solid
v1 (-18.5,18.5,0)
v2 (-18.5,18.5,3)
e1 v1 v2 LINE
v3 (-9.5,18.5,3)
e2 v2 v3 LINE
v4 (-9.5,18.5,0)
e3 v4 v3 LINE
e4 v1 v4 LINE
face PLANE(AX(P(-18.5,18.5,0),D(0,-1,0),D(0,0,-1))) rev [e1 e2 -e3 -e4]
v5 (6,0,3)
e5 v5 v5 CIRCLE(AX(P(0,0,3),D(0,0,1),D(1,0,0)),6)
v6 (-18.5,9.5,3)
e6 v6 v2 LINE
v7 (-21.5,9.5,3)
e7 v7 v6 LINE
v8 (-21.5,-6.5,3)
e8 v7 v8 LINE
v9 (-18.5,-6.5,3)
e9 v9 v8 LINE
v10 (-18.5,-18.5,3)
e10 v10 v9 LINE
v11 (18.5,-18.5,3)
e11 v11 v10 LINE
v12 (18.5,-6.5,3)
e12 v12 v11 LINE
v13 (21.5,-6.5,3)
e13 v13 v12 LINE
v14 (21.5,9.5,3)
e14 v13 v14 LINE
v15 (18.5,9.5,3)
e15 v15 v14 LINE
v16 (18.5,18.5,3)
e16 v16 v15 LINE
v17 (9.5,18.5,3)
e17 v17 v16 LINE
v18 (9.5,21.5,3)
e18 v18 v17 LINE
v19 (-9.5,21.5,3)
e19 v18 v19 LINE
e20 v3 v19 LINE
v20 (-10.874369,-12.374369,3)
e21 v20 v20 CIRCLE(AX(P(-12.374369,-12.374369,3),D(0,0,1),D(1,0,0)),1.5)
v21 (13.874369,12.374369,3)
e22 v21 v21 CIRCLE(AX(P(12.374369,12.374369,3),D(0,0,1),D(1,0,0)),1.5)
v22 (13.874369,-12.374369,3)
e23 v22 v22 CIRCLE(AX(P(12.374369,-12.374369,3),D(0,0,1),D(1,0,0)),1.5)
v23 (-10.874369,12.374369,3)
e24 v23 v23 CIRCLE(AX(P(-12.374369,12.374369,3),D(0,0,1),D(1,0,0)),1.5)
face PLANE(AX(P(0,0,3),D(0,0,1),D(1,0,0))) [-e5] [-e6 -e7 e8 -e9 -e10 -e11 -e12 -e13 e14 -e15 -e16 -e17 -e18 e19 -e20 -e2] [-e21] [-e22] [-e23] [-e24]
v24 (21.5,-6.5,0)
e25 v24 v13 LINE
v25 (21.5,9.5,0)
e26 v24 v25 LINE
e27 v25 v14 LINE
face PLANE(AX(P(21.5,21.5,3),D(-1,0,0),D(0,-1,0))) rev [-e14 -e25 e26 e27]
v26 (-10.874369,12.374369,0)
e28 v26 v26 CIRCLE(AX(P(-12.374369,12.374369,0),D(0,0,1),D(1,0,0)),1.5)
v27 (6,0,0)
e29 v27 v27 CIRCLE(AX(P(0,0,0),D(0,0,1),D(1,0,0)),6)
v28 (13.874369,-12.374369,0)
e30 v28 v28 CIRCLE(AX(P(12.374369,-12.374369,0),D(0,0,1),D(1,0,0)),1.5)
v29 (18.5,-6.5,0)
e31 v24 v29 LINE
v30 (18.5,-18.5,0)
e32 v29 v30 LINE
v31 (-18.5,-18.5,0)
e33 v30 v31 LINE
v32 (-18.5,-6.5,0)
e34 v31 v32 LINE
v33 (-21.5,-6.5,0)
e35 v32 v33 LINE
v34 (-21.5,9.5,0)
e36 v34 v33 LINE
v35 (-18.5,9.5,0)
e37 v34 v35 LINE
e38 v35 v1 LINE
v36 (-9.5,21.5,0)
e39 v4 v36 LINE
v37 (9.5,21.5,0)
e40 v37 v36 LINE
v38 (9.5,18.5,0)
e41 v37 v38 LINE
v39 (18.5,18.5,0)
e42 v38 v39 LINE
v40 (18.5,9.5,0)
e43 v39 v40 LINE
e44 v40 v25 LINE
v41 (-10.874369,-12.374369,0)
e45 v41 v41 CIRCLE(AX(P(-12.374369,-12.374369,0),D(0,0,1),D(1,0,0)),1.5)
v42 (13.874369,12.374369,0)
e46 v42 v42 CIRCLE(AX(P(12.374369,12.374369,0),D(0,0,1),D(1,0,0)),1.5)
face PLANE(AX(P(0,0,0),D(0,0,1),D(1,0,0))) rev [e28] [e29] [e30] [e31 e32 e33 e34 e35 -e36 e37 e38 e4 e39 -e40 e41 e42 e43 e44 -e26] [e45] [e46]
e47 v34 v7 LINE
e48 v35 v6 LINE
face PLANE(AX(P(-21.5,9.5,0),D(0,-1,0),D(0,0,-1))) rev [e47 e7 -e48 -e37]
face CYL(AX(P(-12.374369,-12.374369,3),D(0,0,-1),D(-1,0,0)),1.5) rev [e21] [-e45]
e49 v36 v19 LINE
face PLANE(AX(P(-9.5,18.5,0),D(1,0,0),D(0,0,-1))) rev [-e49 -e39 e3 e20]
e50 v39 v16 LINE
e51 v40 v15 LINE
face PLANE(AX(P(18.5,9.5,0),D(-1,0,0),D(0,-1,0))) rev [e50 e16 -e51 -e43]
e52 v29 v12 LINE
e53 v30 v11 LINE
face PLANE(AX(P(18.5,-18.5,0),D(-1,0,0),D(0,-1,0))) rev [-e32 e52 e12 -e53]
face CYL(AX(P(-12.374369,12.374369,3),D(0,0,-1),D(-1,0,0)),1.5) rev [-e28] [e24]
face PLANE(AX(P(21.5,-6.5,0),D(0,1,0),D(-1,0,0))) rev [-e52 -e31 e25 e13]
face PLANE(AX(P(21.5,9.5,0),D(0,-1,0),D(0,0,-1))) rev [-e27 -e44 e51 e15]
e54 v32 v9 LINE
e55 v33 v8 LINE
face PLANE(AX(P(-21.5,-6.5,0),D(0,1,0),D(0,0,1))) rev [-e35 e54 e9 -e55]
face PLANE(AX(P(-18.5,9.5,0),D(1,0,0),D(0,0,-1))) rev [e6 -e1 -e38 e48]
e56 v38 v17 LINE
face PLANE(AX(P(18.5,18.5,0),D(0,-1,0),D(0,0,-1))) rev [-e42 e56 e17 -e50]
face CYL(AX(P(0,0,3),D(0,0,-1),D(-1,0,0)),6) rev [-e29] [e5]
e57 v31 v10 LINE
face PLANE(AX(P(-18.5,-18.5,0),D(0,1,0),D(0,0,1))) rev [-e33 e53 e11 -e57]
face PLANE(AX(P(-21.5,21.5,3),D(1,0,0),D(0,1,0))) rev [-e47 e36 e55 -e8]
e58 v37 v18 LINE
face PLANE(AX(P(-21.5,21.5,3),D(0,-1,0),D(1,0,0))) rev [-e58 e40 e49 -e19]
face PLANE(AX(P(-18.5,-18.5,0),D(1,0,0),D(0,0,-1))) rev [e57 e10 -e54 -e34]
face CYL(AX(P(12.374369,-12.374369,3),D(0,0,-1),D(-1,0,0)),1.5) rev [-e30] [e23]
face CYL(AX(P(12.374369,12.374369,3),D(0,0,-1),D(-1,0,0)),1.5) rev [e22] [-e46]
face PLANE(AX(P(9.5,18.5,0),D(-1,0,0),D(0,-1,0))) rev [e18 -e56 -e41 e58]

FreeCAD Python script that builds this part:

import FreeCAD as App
import Part
import Sketcher

doc = App.newDocument("Part")
body = doc.addObject("PartDesign::Body", "Body")

# Sketch on XY plane
sketch1 = body.newObject("Sketcher::SketchObject", "Sketch")
sketch1.AttachmentSupport = (doc.getObject("XY_Plane"), [""])
sketch1.MapMode = "FlatFace"
sketch1.addGeometry(Part.LineSegment(App.Vector(-21.5, 21.5, 0), App.Vector(-21.5, -21.5, 0)), False)
sketch1.addGeometry(Part.LineSegment(App.Vector(-21.5, -21.5, 0), App.Vector(21.5, -21.5, 0)), False)
sketch1.addGeometry(Part.LineSegment(App.Vector(21.5, -21.5, 0), App.Vector(21.5, 21.5, 0)), False)
sketch1.addGeometry(Part.LineSegment(App.Vector(21.5, 21.5, 0), App.Vector(-21.5, 21.5, 0)), False)
sketch1.addGeometry(Part.Circle(App.Vector(-12.4, -12.4, 0), App.Vector(0, 0, 1), 1.5), False)
sketch1.addGeometry(Part.Circle(App.Vector(12.4, -12.4, 0), App.Vector(0, 0, 1), 1.5), False)
sketch1.addGeometry(Part.Circle(App.Vector(-12.4, 12.4, 0), App.Vector(0, 0, 1), 1.5), False)
sketch1.addGeometry(Part.Circle(App.Vector(0, 0, 0), App.Vector(0, 0, 1), 6), False)
sketch1.addGeometry(Part.Circle(App.Vector(12.4, 12.4, 0), App.Vector(0, 0, 1), 1.5), False)
sketch1.addConstraint(Sketcher.Constraint("Coincident", 0, 2, 1, 1))
sketch1.addConstraint(Sketcher.Constraint("Coincident", 1, 2, 2, 1))
sketch1.addConstraint(Sketcher.Constraint("Coincident", 2, 2, 3, 1))
sketch1.addConstraint(Sketcher.Constraint("Coincident", 3, 2, 0, 1))
sketch1.addConstraint(Sketcher.Constraint("Vertical", 0))
sketch1.addConstraint(Sketcher.Constraint("Horizontal", 1))
sketch1.addConstraint(Sketcher.Constraint("Vertical", 2))
sketch1.addConstraint(Sketcher.Constraint("Horizontal", 3))
sketch1.addConstraint(Sketcher.Constraint("Coincident", 7, 3, -1, 1))
sketch1.addConstraint(Sketcher.Constraint("Equal", 4, 5))
sketch1.addConstraint(Sketcher.Constraint("Equal", 5, 6))
sketch1.addConstraint(Sketcher.Constraint("Equal", 6, 8))
sketch1.addConstraint(Sketcher.Constraint("Symmetric", 5, 3, 6, 3, -1, 1))
sketch1.addConstraint(Sketcher.Constraint("Symmetric", 4, 3, 8, 3, -1, 1))
sketch1.addConstraint(Sketcher.Constraint("Symmetric", 0, 2, 2, 2, -1, 1))
sketch1.addConstraint(Sketcher.Constraint("Symmetric", 4, 3, 5, 3, -2))
sketch1.addConstraint(Sketcher.Constraint("Equal", 3, 0))
sketch1.addConstraint(Sketcher.Constraint("Diameter", 4, 3.0))
sketch1.addConstraint(Sketcher.Constraint("Diameter", 7, 12.0))
sketch1.addConstraint(Sketcher.Constraint("DistanceX", 1, 1, 1, 2, 43.0))
sketch1.addConstraint(Sketcher.Constraint("DistanceX", 4, 3, -1, 1, 12.374369))
sketch1.addConstraint(Sketcher.Constraint("DistanceY", 4, 3, -1, 1, 12.374369))
pad1 = body.newObject("PartDesign::Pad", "Pad")
pad1.Profile = sketch1
pad1.Length = 3

# Sketch on XY plane
sketch2 = body.newObject("Sketcher::SketchObject", "Sketch001")
sketch2.AttachmentSupport = (doc.getObject("XY_Plane"), [""])
sketch2.MapMode = "FlatFace"
sketch2.AttachmentOffset = App.Placement(App.Vector(0, 0, 3), App.Rotation())
sketch2.addGeometry(Part.LineSegment(App.Vector(-21.5, -21.5, 0), App.Vector(21.5, -21.5, 0)), False)
sketch2.addGeometry(Part.LineSegment(App.Vector(21.5, -21.5, 0), App.Vector(21.5, -6.5, 0)), False)
sketch2.addGeometry(Part.LineSegment(App.Vector(21.5, -6.5, 0), App.Vector(18.5, -6.5, 0)), False)
sketch2.addGeometry(Part.LineSegment(App.Vector(18.5, -6.5, 0), App.Vector(18.5, -18.5, 0)), False)
sketch2.addGeometry(Part.LineSegment(App.Vector(18.5, -18.5, 0), App.Vector(-18.5, -18.5, 0)), False)
sketch2.addGeometry(Part.LineSegment(App.Vector(-18.5, -18.5, 0), App.Vector(-18.5, -6.5, 0)), False)
sketch2.addGeometry(Part.LineSegment(App.Vector(-18.5, -6.5, 0), App.Vector(-21.5, -6.5, 0)), False)
sketch2.addGeometry(Part.LineSegment(App.Vector(-21.5, -6.5, 0), App.Vector(-21.5, -21.5, 0)), False)
sketch2.addGeometry(Part.LineSegment(App.Vector(-21.5, 9.5, 0), App.Vector(-18.5, 9.5, 0)), False)
sketch2.addGeometry(Part.LineSegment(App.Vector(-18.5, 9.5, 0), App.Vector(-18.5, 18.5, 0)), False)
sketch2.addGeometry(Part.LineSegment(App.Vector(-18.5, 18.5, 0), App.Vector(-9.5, 18.5, 0)), False)
sketch2.addGeometry(Part.LineSegment(App.Vector(-9.5, 18.5, 0), App.Vector(-9.5, 21.5, 0)), False)
sketch2.addGeometry(Part.LineSegment(App.Vector(-9.5, 21.5, 0), App.Vector(-21.5, 21.5, 0)), False)
sketch2.addGeometry(Part.LineSegment(App.Vector(-21.5, 21.5, 0), App.Vector(-21.5, 9.5, 0)), False)
sketch2.addGeometry(Part.LineSegment(App.Vector(21.5, 9.5, 0), App.Vector(21.5, 21.5, 0)), False)
sketch2.addGeometry(Part.LineSegment(App.Vector(21.5, 21.5, 0), App.Vector(9.5, 21.5, 0)), False)
sketch2.addGeometry(Part.LineSegment(App.Vector(9.5, 21.5, 0), App.Vector(9.5, 18.5, 0)), False)
sketch2.addGeometry(Part.LineSegment(App.Vector(9.5, 18.5, 0), App.Vector(18.5, 18.5, 0)), False)
sketch2.addGeometry(Part.LineSegment(App.Vector(18.5, 18.5, 0), App.Vector(18.5, 9.5, 0)), False)
sketch2.addGeometry(Part.LineSegment(App.Vector(18.5, 9.5, 0), App.Vector(21.5, 9.5, 0)), False)
sketch2.addConstraint(Sketcher.Constraint("Coincident", 0, 2, 1, 1))
sketch2.addConstraint(Sketcher.Constraint("Coincident", 1, 2, 2, 1))
sketch2.addConstraint(Sketcher.Constraint("Coincident", 2, 2, 3, 1))
sketch2.addConstraint(Sketcher.Constraint("Coincident", 3, 2, 4, 1))
sketch2.addConstraint(Sketcher.Constraint("Coincident", 4, 2, 5, 1))
sketch2.addConstraint(Sketcher.Constraint("Coincident", 5, 2, 6, 1))
sketch2.addConstraint(Sketcher.Constraint("Coincident", 6, 2, 7, 1))
sketch2.addConstraint(Sketcher.Constraint("Coincident", 7, 2, 0, 1))
sketch2.addConstraint(Sketcher.Constraint("Coincident", 8, 2, 9, 1))
sketch2.addConstraint(Sketcher.Constraint("Coincident", 9, 2, 10, 1))
sketch2.addConstraint(Sketcher.Constraint("Coincident", 10, 2, 11, 1))
sketch2.addConstraint(Sketcher.Constraint("Coincident", 11, 2, 12, 1))
sketch2.addConstraint(Sketcher.Constraint("Coincident", 12, 2, 13, 1))
sketch2.addConstraint(Sketcher.Constraint("Coincident", 13, 2, 8, 1))
sketch2.addConstraint(Sketcher.Constraint("Coincident", 14, 2, 15, 1))
sketch2.addConstraint(Sketcher.Constraint("Coincident", 15, 2, 16, 1))
sketch2.addConstraint(Sketcher.Constraint("Coincident", 16, 2, 17, 1))
sketch2.addConstraint(Sketcher.Constraint("Coincident", 17, 2, 18, 1))
sketch2.addConstraint(Sketcher.Constraint("Coincident", 18, 2, 19, 1))
sketch2.addConstraint(Sketcher.Constraint("Coincident", 19, 2, 14, 1))
sketch2.addConstraint(Sketcher.Constraint("Horizontal", 0))
sketch2.addConstraint(Sketcher.Constraint("Vertical", 1))
sketch2.addConstraint(Sketcher.Constraint("Horizontal", 2))
sketch2.addConstraint(Sketcher.Constraint("Vertical", 3))
sketch2.addConstraint(Sketcher.Constraint("Horizontal", 4))
sketch2.addConstraint(Sketcher.Constraint("Vertical", 5))
sketch2.addConstraint(Sketcher.Constraint("Horizontal", 6))
sketch2.addConstraint(Sketcher.Constraint("Vertical", 7))
sketch2.addConstraint(Sketcher.Constraint("Horizontal", 8))
sketch2.addConstraint(Sketcher.Constraint("Vertical", 9))
sketch2.addConstraint(Sketcher.Constraint("Horizontal", 10))
sketch2.addConstraint(Sketcher.Constraint("Vertical", 11))
sketch2.addConstraint(Sketcher.Constraint("Horizontal", 12))
sketch2.addConstraint(Sketcher.Constraint("Vertical", 13))
sketch2.addConstraint(Sketcher.Constraint("Vertical", 14))
sketch2.addConstraint(Sketcher.Constraint("Horizontal", 15))
sketch2.addConstraint(Sketcher.Constraint("Vertical", 16))
sketch2.addConstraint(Sketcher.Constraint("Horizontal", 17))
sketch2.addConstraint(Sketcher.Constraint("Vertical", 18))
sketch2.addConstraint(Sketcher.Constraint("Horizontal", 19))
sketch2.addConstraint(Sketcher.Constraint("Symmetric", 3, 2, 9, 2, -1, 1))
sketch2.addConstraint(Sketcher.Constraint("Symmetric", 0, 2, 12, 2, -1, 1))
sketch2.addConstraint(Sketcher.Constraint("Symmetric", 7, 2, 14, 2, -1, 1))
sketch2.addConstraint(Sketcher.Constraint("Symmetric", 4, 2, 17, 2, -1, 1))
sketch2.addConstraint(Sketcher.Constraint("Symmetric", 2, 2, 5, 2, -2))
sketch2.addConstraint(Sketcher.Constraint("Symmetric", 13, 2, 19, 2, -2))
sketch2.addConstraint(Sketcher.Constraint("Equal", 12, 15))
sketch2.addConstraint(Sketcher.Constraint("Equal", 15, 3))
sketch2.addConstraint(Sketcher.Constraint("Equal", 17, 9))
sketch2.addConstraint(Sketcher.Constraint("Equal", 19, 11))
sketch2.addConstraint(Sketcher.Constraint("DistanceX", 0, 1, 0, 2, 43.0))
sketch2.addConstraint(Sketcher.Constraint("DistanceX", 2, 2, 2, 1, 3.0))
sketch2.addConstraint(Sketcher.Constraint("DistanceX", 10, 1, 10, 2, 9.0))
sketch2.addConstraint(Sketcher.Constraint("DistanceY", 5, 2, 8, 2, 16.0))
pocket1 = body.newObject("PartDesign::Pocket", "Pocket")
pocket1.Profile = sketch2
pocket1.Length = 3

doc.recompute()
